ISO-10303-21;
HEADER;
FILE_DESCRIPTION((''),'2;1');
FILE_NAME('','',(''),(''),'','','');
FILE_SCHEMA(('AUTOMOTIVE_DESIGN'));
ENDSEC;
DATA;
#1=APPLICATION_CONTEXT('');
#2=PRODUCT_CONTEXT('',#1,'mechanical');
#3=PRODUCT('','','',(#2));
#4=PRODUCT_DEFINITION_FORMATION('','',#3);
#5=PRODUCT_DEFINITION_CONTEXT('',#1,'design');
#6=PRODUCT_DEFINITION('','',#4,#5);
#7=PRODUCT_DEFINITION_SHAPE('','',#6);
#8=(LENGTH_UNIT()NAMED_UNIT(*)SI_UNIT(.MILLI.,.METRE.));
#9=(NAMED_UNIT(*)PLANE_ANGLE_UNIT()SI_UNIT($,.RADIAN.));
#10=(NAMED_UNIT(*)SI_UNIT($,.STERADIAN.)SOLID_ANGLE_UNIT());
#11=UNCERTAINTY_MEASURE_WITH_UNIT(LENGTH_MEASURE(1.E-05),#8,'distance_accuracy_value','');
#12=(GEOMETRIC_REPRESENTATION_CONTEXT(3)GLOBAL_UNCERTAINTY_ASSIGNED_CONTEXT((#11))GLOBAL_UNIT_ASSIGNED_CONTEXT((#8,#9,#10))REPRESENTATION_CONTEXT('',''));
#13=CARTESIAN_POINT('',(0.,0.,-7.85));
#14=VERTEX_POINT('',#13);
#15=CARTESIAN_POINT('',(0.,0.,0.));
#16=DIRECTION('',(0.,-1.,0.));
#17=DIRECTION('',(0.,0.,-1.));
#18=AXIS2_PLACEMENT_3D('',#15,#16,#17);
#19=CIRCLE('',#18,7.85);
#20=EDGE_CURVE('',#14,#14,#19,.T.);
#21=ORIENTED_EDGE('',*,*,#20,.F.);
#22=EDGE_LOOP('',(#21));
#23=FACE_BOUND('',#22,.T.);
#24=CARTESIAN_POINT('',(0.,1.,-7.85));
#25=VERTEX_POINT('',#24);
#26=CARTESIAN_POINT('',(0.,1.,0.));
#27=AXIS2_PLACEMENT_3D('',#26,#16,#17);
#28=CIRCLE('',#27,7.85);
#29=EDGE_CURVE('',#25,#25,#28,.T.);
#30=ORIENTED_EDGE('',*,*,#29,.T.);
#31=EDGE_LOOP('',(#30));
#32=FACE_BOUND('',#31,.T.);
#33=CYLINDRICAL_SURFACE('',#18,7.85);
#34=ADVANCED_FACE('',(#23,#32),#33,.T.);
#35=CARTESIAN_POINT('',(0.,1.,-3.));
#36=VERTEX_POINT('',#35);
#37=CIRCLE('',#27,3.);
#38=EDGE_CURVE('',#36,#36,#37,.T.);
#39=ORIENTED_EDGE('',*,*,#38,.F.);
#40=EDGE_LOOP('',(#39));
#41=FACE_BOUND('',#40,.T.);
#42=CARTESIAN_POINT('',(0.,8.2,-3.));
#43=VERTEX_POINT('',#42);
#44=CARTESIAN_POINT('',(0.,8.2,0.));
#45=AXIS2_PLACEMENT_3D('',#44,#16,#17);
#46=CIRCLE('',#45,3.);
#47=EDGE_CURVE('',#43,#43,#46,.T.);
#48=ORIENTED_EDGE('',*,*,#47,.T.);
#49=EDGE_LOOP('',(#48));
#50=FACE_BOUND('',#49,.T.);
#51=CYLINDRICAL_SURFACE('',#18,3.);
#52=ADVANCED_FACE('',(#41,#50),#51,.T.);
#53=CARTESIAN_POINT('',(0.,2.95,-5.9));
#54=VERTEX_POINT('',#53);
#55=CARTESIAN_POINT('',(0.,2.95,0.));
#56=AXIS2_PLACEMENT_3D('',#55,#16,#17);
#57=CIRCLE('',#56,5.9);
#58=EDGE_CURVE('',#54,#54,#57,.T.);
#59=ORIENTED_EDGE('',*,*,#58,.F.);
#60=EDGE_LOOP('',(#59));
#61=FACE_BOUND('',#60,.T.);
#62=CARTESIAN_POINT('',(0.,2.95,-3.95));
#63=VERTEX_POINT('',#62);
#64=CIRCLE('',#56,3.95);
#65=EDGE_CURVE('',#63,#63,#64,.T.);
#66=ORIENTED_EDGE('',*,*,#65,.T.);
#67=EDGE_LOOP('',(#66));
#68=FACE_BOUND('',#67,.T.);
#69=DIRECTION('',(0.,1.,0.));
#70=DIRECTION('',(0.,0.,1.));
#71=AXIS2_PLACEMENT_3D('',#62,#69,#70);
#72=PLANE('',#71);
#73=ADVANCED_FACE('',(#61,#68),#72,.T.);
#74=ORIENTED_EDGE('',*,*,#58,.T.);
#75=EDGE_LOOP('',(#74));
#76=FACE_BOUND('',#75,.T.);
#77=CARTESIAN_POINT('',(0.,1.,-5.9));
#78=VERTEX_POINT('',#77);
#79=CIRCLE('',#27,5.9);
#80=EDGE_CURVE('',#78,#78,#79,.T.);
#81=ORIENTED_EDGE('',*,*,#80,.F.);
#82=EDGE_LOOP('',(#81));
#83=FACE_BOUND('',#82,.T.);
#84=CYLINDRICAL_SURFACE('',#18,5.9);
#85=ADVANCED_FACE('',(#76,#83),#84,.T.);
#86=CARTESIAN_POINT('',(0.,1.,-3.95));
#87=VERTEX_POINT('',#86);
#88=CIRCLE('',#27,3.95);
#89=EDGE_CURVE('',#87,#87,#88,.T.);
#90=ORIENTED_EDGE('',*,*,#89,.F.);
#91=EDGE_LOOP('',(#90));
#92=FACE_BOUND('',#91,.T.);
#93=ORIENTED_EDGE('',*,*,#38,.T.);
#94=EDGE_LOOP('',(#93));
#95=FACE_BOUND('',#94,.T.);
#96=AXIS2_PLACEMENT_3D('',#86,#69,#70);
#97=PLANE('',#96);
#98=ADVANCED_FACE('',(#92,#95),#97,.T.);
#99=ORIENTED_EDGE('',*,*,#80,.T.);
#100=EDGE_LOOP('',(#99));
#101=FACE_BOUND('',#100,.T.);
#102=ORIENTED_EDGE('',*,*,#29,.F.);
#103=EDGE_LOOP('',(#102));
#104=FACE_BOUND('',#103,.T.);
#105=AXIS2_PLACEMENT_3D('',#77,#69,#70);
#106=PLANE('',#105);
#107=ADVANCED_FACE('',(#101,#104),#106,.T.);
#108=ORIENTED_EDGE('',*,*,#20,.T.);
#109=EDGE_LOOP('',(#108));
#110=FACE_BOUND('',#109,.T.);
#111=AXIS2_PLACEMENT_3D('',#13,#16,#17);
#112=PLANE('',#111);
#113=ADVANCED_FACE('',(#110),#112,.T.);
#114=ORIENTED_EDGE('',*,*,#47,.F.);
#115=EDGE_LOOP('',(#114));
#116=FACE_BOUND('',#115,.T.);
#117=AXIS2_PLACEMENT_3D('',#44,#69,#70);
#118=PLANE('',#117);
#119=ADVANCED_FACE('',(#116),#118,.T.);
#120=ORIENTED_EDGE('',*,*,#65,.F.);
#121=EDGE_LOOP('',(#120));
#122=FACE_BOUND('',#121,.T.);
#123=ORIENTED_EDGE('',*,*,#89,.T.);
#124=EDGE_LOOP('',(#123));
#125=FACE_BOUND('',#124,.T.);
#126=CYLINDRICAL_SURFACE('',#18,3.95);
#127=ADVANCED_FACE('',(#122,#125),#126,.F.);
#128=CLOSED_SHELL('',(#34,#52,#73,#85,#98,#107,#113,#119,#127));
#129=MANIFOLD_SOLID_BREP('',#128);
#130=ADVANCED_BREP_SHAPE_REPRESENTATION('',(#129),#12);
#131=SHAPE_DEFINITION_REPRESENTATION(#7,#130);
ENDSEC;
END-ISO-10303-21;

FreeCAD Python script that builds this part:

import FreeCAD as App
import Part
import Sketcher
Q = App.Units.Quantity


def add_polygon(sketch, points):
    """Adds a closed chain of lines whose ends are joined by coincident constraints."""
    first, n = sketch.GeometryCount, len(points)
    for a, b in zip(points, points[1:] + points[:1]):
        sketch.addGeometry(Part.LineSegment(App.Vector(*a, 0), App.Vector(*b, 0)), False)
    for i in range(n):
        sketch.addConstraint(Sketcher.Constraint("Coincident", first + i, 2, first + (i + 1) % n, 1))

doc = App.newDocument("Part")
params = doc.addObject("Spreadsheet::Sheet", "Params")
for row, (alias, value) in enumerate([
    ("sketch1_width", "1 mm"),
    ("sketch1_height", "3 mm"),
    ("sketch1_width2", "8.2 mm"),
    ("sketch1_width3", "1.95 mm"),
    ("sketch1_height2", "7.85 mm"),
    ("revolution_angle", "360 deg"),
], start=1):
    params.set(f"A{row}", alias)
    params.set(f"B{row}", "=" + value)
    params.setAlias(f"B{row}", alias)

body = doc.addObject("PartDesign::Body", "Body")

sketch1 = body.newObject("Sketcher::SketchObject", "Sketch")
sketch1.AttachmentSupport = (doc.getObject("YZ_Plane"), [""])
sketch1.MapMode = "FlatFace"
add_polygon(sketch1, [(8.2, -3), (8.2, 0), (0, 0), (0, -7.85), (1, -7.85), (1, -5.9), (2.95, -5.9), (2.95, -3.95), (1, -3.95), (1, -3)])
sketch1.addConstraint([
    Sketcher.Constraint("Vertical", 0),
    Sketcher.Constraint("Horizontal", 1),
    Sketcher.Constraint("Vertical", 2),
    Sketcher.Constraint("Horizontal", 3),
    Sketcher.Constraint("Vertical", 4),
    Sketcher.Constraint("Horizontal", 5),
    Sketcher.Constraint("Vertical", 6),
    Sketcher.Constraint("Horizontal", 7),
    Sketcher.Constraint("Vertical", 8),
    Sketcher.Constraint("Horizontal", 9),
    Sketcher.Constraint("Coincident", 1, 2, -1, 1),
    Sketcher.Constraint("Vertical", 4, 2, 7, 2),
    Sketcher.Constraint("Equal", 7, 4),
    Sketcher.Constraint("Equal", 4, 6),
    Sketcher.Constraint("DistanceX", 3, 1, 3, 2, Q("1 mm")),
    Sketcher.Constraint("DistanceY", 0, 1, 0, 2, Q("3 mm")),
    Sketcher.Constraint("DistanceX", 1, 2, 1, 1, Q("8.2 mm")),
    Sketcher.Constraint("DistanceX", 5, 1, 5, 2, Q("1.95 mm")),
    Sketcher.Constraint("DistanceY", 2, 2, 2, 1, Q("7.85 mm")),
])
sketch1.setExpression("Constraints[24]", "Params.sketch1_width")
sketch1.setExpression("Constraints[25]", "Params.sketch1_height")
sketch1.setExpression("Constraints[26]", "Params.sketch1_width2")
sketch1.setExpression("Constraints[27]", "Params.sketch1_width3")
sketch1.setExpression("Constraints[28]", "Params.sketch1_height2")
revolution = body.newObject("PartDesign::Revolution", "Revolution")
revolution.Profile = sketch1
revolution.ReferenceAxis = (sketch1, ["H_Axis"])
revolution.setExpression("Angle", "Params.revolution_angle")

doc.recompute()
